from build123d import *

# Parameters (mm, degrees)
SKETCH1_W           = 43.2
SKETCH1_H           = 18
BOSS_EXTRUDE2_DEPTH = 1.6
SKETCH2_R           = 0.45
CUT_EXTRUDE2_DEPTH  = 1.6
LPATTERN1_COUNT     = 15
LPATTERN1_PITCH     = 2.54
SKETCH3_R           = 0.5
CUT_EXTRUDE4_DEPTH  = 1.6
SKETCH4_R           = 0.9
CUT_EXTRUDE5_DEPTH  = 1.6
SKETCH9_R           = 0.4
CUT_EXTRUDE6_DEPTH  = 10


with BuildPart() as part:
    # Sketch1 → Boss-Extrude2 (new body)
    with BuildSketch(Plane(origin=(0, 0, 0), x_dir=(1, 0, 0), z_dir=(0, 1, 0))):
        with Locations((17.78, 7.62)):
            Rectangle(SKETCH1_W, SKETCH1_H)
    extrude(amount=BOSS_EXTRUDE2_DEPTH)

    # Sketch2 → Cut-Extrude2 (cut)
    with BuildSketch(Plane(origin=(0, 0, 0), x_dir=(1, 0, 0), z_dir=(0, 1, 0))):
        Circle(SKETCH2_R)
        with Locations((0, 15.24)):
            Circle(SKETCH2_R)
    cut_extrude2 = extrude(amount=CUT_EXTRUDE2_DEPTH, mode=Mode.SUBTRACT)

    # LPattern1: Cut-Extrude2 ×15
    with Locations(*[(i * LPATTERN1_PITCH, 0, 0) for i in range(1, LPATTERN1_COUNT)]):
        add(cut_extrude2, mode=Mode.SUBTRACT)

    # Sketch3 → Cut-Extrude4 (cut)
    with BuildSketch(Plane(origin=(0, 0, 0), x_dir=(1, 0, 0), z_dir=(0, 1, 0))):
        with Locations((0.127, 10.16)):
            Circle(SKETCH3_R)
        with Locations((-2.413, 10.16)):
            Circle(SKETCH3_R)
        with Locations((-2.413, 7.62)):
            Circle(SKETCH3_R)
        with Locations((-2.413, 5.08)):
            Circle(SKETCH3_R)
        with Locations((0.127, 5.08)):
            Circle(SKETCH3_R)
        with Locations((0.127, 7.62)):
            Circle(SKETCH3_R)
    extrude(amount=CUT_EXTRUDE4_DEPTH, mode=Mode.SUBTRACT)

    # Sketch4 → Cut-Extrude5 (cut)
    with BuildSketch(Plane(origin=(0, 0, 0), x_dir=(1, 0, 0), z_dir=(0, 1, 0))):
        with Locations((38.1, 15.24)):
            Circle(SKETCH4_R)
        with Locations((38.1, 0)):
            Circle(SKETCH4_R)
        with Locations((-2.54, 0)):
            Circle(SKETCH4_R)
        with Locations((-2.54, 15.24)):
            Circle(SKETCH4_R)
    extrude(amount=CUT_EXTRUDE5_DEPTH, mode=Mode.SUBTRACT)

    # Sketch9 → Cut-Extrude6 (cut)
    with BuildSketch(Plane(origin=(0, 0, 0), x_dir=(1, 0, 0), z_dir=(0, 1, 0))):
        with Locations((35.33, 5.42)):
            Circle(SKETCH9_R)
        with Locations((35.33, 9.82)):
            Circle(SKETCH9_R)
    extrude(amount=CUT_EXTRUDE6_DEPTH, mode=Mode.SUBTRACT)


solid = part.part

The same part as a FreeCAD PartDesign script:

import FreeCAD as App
import Part
import Sketcher
from FreeCAD import Vector


def add_polygon(sketch, points):
    """Adds a closed chain of lines whose ends are joined by coincident constraints."""
    first, n = sketch.GeometryCount, len(points)
    for a, b in zip(points, points[1:] + points[:1]):
        sketch.addGeometry(Part.LineSegment(App.Vector(*a, 0), App.Vector(*b, 0)), False)
    for i in range(n):
        sketch.addConstraint(Sketcher.Constraint("Coincident", first + i, 2, first + (i + 1) % n, 1))

doc = App.newDocument("Part")
body = doc.addObject("PartDesign::Body", "Body")

# Sketch on XZ plane
sketch1 = body.newObject("Sketcher::SketchObject", "Sketch")
sketch1.AttachmentSupport = (doc.getObject("XZ_Plane"), [""])
sketch1.MapMode = "FlatFace"
add_polygon(sketch1, [(-3.82, -16.62), (-3.82, 1.38), (39.38, 1.38), (39.38, -16.62)])  # lines 0-3
sketch1.addConstraint(Sketcher.Constraint("Vertical", 0))
sketch1.addConstraint(Sketcher.Constraint("Horizontal", 1))
sketch1.addConstraint(Sketcher.Constraint("Vertical", 2))
sketch1.addConstraint(Sketcher.Constraint("Horizontal", 3))
sketch1.addConstraint(Sketcher.Constraint("DistanceY", 0, 1, 0, 2, 18.0))
sketch1.addConstraint(Sketcher.Constraint("DistanceX", 1, 1, 1, 2, 43.2))
sketch1.addConstraint(Sketcher.Constraint("DistanceX", 0, 2, -1, 1, 3.82))
sketch1.addConstraint(Sketcher.Constraint("DistanceY", -1, 1, 0, 2, 1.38))
pad1 = body.newObject("PartDesign::Pad", "Pad")
pad1.Profile = sketch1
pad1.Length = 1.6
pad1.Reversed = True

# Sketch on XZ plane
sketch2 = body.newObject("Sketcher::SketchObject", "Sketch001")
sketch2.AttachmentSupport = (doc.getObject("XZ_Plane"), [""])
sketch2.MapMode = "FlatFace"
sketch2.addGeometry(Part.Circle(Vector(0, 0, 0), Vector(0, 0, 1), 0.45), False)
sketch2.addGeometry(Part.Circle(Vector(0, -15.24, 0), Vector(0, 0, 1), 0.45), False)
sketch2.addConstraint(Sketcher.Constraint("Coincident", 0, 3, -1, 1))
sketch2.addConstraint(Sketcher.Constraint("Equal", 0, 1))
sketch2.addConstraint(Sketcher.Constraint("PointOnObject", 1, 3, -2))
sketch2.addConstraint(Sketcher.Constraint("Diameter", 0, 0.9))
sketch2.addConstraint(Sketcher.Constraint("DistanceY", 1, 3, -1, 1, 15.24))
pocket1 = body.newObject("PartDesign::Pocket", "Pocket")
pocket1.Profile = sketch2
pocket1.Length = 1.6
doc.recompute()

linearpattern = body.newObject("PartDesign::LinearPattern", "LinearPattern")
linearpattern.Originals = [pocket1]
linearpattern.Direction = (doc.getObject("X_Axis"), [""])
linearpattern.Mode = "offset"
linearpattern.Offset = 2.54
linearpattern.Occurrences = 15
body.Tip = linearpattern

# Sketch on XZ plane
sketch3 = body.newObject("Sketcher::SketchObject", "Sketch002")
sketch3.AttachmentSupport = (doc.getObject("XZ_Plane"), [""])
sketch3.MapMode = "FlatFace"
sketch3.addGeometry(Part.Circle(Vector(0.127, -10.16, 0), Vector(0, 0, 1), 0.5), False)
sketch3.addGeometry(Part.Circle(Vector(-2.413, -10.16, 0), Vector(0, 0, 1), 0.5), False)
sketch3.addGeometry(Part.Circle(Vector(-2.413, -7.62, 0), Vector(0, 0, 1), 0.5), False)
sketch3.addGeometry(Part.Circle(Vector(-2.413, -5.08, 0), Vector(0, 0, 1), 0.5), False)
sketch3.addGeometry(Part.Circle(Vector(0.127, -5.08, 0), Vector(0, 0, 1), 0.5), False)
sketch3.addGeometry(Part.Circle(Vector(0.127, -7.62, 0), Vector(0, 0, 1), 0.5), False)
sketch3.addConstraint(Sketcher.Constraint("Equal", 0, 1))
sketch3.addConstraint(Sketcher.Constraint("Equal", 1, 2))
sketch3.addConstraint(Sketcher.Constraint("Equal", 2, 3))
sketch3.addConstraint(Sketcher.Constraint("Equal", 3, 4))
sketch3.addConstraint(Sketcher.Constraint("Equal", 4, 5))
sketch3.addConstraint(Sketcher.Constraint("Horizontal", 0, 3, 1, 3))
sketch3.addConstraint(Sketcher.Constraint("Horizontal", 3, 3, 4, 3))
sketch3.addConstraint(Sketcher.Constraint("Horizontal", 2, 3, 5, 3))
sketch3.addConstraint(Sketcher.Constraint("Vertical", 1, 3, 2, 3))
sketch3.addConstraint(Sketcher.Constraint("Vertical", 2, 3, 3, 3))
sketch3.addConstraint(Sketcher.Constraint("Vertical", 0, 3, 4, 3))
sketch3.addConstraint(Sketcher.Constraint("Vertical", 4, 3, 5, 3))
sketch3.addConstraint(Sketcher.Constraint("Diameter", 0, 1.0))
sketch3.addConstraint(Sketcher.Constraint("DistanceY", 0, 3, -1, 1, 10.16))
sketch3.addConstraint(Sketcher.Constraint("DistanceY", 2, 3, -1, 1, 7.62))
sketch3.addConstraint(Sketcher.Constraint("DistanceY", 3, 3, -1, 1, 5.08))
sketch3.addConstraint(Sketcher.Constraint("DistanceX", 1, 3, 0, 3, 2.54))
sketch3.addConstraint(Sketcher.Constraint("DistanceX", -1, 1, 0, 3, 0.127))
pocket2 = body.newObject("PartDesign::Pocket", "Pocket001")
pocket2.Profile = sketch3
pocket2.Length = 1.6

# Sketch on XZ plane
sketch4 = body.newObject("Sketcher::SketchObject", "Sketch003")
sketch4.AttachmentSupport = (doc.getObject("XZ_Plane"), [""])
sketch4.MapMode = "FlatFace"
sketch4.addGeometry(Part.Circle(Vector(38.1, -15.24, 0), Vector(0, 0, 1), 0.9), False)
sketch4.addGeometry(Part.Circle(Vector(38.1, 0, 0), Vector(0, 0, 1), 0.9), False)
sketch4.addGeometry(Part.Circle(Vector(-2.54, 0, 0), Vector(0, 0, 1), 0.9), False)
sketch4.addGeometry(Part.Circle(Vector(-2.54, -15.24, 0), Vector(0, 0, 1), 0.9), False)
sketch4.addConstraint(Sketcher.Constraint("Equal", 0, 1))
sketch4.addConstraint(Sketcher.Constraint("Equal", 1, 2))
sketch4.addConstraint(Sketcher.Constraint("Equal", 2, 3))
sketch4.addConstraint(Sketcher.Constraint("PointOnObject", 1, 3, -1))
sketch4.addConstraint(Sketcher.Constraint("PointOnObject", 2, 3, -1))
sketch4.addConstraint(Sketcher.Constraint("Horizontal", 0, 3, 3, 3))
sketch4.addConstraint(Sketcher.Constraint("Vertical", 0, 3, 1, 3))
sketch4.addConstraint(Sketcher.Constraint("Vertical", 2, 3, 3, 3))
sketch4.addConstraint(Sketcher.Constraint("Diameter", 0, 1.8))
sketch4.addConstraint(Sketcher.Constraint("DistanceX", -1, 1, 0, 3, 38.1))
sketch4.addConstraint(Sketcher.Constraint("DistanceY", 0, 3, -1, 1, 15.24))
sketch4.addConstraint(Sketcher.Constraint("DistanceX", 2, 3, -1, 1, 2.54))
pocket3 = body.newObject("PartDesign::Pocket", "Pocket002")
pocket3.Profile = sketch4
pocket3.Length = 1.6

# Sketch on XZ plane
sketch5 = body.newObject("Sketcher::SketchObject", "Sketch004")
sketch5.AttachmentSupport = (doc.getObject("XZ_Plane"), [""])
sketch5.MapMode = "FlatFace"
sketch5.addGeometry(Part.Circle(Vector(35.33, -5.42, 0), Vector(0, 0, 1), 0.4), False)
sketch5.addGeometry(Part.Circle(Vector(35.33, -9.82, 0), Vector(0, 0, 1), 0.4), False)
sketch5.addConstraint(Sketcher.Constraint("Equal", 0, 1))
sketch5.addConstraint(Sketcher.Constraint("Vertical", 0, 3, 1, 3))
sketch5.addConstraint(Sketcher.Constraint("Diameter", 0, 0.8))
sketch5.addConstraint(Sketcher.Constraint("DistanceY", 1, 3, 0, 3, 4.4))
sketch5.addConstraint(Sketcher.Constraint("DistanceX", -1, 1, 0, 3, 35.33))
sketch5.addConstraint(Sketcher.Constraint("DistanceY", 0, 3, -1, 1, 5.42))
pocket4 = body.newObject("PartDesign::Pocket", "Pocket003")
pocket4.Profile = sketch5
pocket4.Length = 10

doc.recompute()
